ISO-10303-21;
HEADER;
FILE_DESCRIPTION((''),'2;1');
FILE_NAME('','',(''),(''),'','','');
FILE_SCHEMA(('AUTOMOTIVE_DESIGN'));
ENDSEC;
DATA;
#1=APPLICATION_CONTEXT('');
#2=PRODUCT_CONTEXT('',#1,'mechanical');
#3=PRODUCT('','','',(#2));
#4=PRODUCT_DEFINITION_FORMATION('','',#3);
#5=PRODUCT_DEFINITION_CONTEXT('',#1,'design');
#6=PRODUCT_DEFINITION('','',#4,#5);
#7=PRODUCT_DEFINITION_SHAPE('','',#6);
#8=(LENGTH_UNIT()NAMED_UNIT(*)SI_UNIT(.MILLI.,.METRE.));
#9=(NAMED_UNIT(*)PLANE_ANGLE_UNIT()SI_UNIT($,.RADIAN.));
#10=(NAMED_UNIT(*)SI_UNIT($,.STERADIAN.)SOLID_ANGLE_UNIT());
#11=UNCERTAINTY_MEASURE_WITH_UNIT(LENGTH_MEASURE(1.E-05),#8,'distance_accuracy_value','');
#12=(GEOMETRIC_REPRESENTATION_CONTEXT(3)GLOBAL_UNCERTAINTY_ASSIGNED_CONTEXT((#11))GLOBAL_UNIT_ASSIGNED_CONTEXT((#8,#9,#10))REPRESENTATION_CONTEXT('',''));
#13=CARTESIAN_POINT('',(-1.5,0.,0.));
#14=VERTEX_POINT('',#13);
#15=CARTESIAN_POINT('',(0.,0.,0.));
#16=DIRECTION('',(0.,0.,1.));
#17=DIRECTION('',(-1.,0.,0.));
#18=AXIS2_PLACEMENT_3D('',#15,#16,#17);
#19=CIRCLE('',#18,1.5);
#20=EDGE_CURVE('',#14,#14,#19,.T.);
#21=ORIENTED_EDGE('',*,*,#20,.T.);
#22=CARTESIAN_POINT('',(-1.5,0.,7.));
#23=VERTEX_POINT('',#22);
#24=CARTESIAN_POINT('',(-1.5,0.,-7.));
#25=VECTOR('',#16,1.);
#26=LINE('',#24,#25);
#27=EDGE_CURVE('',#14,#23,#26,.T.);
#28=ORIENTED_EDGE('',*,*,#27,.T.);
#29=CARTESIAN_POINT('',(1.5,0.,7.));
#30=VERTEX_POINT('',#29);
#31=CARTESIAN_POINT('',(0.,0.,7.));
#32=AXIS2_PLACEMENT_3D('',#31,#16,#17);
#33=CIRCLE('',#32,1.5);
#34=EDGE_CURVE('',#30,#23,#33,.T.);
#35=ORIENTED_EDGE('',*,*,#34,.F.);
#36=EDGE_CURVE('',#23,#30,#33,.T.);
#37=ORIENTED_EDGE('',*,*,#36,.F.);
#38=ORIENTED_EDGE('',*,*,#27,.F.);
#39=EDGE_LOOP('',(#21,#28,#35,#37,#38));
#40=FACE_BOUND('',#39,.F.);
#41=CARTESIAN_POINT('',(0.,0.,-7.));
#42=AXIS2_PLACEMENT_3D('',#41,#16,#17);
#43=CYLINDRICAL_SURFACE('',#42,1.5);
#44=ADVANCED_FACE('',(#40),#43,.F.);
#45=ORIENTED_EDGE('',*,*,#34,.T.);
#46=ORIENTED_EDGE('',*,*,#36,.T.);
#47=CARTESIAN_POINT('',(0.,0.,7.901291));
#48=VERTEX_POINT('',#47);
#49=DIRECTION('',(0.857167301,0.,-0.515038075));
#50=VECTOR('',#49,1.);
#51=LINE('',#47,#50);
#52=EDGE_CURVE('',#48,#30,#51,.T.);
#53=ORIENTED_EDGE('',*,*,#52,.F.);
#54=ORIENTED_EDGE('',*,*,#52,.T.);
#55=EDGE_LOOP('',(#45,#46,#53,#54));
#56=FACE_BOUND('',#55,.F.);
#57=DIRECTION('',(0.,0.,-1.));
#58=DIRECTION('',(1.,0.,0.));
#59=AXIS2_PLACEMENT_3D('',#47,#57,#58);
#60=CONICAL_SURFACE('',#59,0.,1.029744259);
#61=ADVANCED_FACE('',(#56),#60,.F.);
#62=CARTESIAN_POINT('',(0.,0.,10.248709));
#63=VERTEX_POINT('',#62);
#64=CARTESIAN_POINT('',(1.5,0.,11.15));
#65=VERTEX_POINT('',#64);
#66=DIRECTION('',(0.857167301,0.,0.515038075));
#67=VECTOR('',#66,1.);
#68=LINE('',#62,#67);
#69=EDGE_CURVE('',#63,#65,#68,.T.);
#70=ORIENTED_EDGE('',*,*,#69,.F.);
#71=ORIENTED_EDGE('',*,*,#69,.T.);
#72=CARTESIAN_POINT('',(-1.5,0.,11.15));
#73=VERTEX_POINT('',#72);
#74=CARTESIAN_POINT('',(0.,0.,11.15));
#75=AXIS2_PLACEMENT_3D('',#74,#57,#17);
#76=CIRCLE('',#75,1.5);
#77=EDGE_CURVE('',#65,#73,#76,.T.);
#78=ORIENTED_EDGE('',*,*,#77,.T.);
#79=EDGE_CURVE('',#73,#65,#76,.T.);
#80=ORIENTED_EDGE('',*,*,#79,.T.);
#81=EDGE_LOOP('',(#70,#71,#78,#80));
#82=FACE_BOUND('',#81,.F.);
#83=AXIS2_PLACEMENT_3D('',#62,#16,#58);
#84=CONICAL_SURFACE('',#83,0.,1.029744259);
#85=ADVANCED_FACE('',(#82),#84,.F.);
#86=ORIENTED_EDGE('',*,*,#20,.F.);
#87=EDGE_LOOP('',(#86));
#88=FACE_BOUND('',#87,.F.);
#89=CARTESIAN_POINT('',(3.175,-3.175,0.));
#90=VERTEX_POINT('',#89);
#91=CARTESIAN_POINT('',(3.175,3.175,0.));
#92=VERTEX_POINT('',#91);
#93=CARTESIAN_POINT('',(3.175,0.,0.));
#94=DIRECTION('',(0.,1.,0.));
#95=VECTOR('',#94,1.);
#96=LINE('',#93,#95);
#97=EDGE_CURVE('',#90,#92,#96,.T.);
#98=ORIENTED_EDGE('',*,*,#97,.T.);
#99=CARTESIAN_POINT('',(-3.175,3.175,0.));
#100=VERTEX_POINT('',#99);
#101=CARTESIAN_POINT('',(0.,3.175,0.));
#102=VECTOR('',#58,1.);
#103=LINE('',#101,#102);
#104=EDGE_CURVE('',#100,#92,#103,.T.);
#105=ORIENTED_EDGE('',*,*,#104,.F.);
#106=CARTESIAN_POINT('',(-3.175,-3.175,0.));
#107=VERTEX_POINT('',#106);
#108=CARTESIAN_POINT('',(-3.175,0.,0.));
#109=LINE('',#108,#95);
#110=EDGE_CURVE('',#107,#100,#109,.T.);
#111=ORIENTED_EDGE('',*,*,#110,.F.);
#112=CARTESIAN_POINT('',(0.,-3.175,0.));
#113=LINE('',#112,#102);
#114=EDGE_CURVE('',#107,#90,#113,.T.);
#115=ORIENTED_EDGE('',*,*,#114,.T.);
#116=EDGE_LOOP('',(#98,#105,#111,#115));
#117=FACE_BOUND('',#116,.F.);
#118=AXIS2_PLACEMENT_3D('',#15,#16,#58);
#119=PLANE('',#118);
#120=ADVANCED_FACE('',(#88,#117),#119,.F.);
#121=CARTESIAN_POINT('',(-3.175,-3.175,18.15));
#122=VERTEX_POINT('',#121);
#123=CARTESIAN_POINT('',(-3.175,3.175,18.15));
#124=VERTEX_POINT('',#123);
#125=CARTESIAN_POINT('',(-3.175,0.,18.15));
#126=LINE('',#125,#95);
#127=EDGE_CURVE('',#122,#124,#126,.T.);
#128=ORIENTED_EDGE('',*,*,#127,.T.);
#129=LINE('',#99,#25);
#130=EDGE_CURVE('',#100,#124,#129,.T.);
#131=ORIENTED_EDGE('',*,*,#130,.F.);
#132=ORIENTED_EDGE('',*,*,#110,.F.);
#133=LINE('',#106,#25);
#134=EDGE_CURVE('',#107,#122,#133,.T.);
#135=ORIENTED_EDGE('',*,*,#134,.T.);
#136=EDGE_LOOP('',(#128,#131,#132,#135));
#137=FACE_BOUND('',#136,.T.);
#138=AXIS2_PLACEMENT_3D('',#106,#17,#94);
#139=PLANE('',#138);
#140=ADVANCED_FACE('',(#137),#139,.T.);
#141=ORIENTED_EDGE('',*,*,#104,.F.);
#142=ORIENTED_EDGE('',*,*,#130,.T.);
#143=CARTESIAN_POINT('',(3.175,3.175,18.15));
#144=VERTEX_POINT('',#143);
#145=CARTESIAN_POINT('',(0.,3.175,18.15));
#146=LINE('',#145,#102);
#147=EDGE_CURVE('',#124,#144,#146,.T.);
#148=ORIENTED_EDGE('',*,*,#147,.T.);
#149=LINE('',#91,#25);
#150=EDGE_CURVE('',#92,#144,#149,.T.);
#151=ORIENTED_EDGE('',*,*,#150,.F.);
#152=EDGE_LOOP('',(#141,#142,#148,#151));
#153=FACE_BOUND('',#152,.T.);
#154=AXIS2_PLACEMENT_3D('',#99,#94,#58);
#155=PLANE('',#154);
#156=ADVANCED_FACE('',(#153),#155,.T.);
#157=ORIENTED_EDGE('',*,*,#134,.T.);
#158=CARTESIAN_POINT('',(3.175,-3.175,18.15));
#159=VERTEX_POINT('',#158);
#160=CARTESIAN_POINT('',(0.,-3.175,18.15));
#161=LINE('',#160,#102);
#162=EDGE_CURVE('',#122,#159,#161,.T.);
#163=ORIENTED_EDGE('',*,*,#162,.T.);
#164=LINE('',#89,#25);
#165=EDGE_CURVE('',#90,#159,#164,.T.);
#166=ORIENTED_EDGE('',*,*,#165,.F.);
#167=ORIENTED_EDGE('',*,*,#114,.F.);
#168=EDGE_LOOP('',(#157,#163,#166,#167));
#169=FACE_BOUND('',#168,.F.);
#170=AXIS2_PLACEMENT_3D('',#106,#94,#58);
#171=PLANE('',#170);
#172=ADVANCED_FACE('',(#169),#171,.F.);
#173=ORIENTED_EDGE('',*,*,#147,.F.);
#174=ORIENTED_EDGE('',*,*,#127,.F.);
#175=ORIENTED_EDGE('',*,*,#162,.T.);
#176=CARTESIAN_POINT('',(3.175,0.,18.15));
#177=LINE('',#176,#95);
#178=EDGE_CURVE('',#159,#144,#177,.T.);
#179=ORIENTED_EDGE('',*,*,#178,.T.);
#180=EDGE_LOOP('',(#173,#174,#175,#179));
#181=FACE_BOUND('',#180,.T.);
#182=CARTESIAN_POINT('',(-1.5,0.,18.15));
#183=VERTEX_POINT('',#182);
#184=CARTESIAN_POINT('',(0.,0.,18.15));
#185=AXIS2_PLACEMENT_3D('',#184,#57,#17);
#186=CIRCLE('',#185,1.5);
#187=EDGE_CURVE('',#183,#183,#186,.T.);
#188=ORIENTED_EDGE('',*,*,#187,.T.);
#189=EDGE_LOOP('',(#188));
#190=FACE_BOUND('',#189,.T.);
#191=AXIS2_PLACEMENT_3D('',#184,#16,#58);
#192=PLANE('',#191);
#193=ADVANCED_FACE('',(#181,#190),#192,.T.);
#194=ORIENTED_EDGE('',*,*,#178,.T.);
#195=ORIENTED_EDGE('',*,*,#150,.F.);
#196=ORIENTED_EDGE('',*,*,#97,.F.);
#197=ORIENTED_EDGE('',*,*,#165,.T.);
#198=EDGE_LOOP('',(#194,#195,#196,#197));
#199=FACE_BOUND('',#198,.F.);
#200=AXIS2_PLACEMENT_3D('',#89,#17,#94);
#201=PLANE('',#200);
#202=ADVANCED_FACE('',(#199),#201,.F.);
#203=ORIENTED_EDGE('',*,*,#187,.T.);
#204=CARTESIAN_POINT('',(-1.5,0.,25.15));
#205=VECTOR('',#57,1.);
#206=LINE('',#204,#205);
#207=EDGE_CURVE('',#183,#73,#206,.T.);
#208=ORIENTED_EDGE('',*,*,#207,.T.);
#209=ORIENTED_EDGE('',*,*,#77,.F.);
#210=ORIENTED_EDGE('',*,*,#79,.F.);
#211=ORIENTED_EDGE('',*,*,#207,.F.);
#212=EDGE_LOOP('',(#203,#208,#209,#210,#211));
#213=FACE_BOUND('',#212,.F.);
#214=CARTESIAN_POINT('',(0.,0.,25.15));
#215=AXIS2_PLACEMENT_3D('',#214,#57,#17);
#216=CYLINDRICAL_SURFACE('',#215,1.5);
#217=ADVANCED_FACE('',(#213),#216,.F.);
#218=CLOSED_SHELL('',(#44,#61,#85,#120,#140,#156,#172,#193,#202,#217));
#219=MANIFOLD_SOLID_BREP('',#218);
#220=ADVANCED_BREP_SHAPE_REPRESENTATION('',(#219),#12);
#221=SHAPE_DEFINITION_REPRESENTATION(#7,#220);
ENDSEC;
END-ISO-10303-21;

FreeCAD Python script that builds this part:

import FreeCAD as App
import Part
import Sketcher
from FreeCAD import Vector


def add_polygon(sketch, points):
    """Adds a closed chain of lines whose ends are joined by coincident constraints."""
    first, n = sketch.GeometryCount, len(points)
    for a, b in zip(points, points[1:] + points[:1]):
        sketch.addGeometry(Part.LineSegment(App.Vector(*a, 0), App.Vector(*b, 0)), False)
    for i in range(n):
        sketch.addConstraint(Sketcher.Constraint("Coincident", first + i, 2, first + (i + 1) % n, 1))

doc = App.newDocument("Part")
body = doc.addObject("PartDesign::Body", "Body")

# Sketch on XY plane
sketch1 = body.newObject("Sketcher::SketchObject", "Sketch")
sketch1.AttachmentSupport = (doc.getObject("XY_Plane"), [""])
sketch1.MapMode = "FlatFace"
add_polygon(sketch1, [(-3, 3), (-3, -3), (3, -3), (3, 3)])  # lines 0-3
sketch1.addConstraint([
    Sketcher.Constraint("Vertical", 0),
    Sketcher.Constraint("Horizontal", 1),
    Sketcher.Constraint("Vertical", 2),
    Sketcher.Constraint("Horizontal", 3),
    Sketcher.Constraint("Symmetric", 0, 2, 2, 2, -1, 1),
    Sketcher.Constraint("Equal", 3, 0),
    Sketcher.Constraint("DistanceX", 1, 1, 1, 2, 6.35),
])
pad1 = body.newObject("PartDesign::Pad", "Pad")
pad1.Profile = sketch1
pad1.Length = 18.15

# Sketch on XY plane
sketch2 = body.newObject("Sketcher::SketchObject", "Sketch001")
sketch2.AttachmentSupport = (doc.getObject("XY_Plane"), [""])
sketch2.MapMode = "FlatFace"
sketch2.addGeometry(Part.Circle(Vector(0, 0, 0), Vector(0, 0, 1), 1.5), False)
sketch2.addConstraint([
    Sketcher.Constraint("Coincident", 0, 3, -1, 1),
    Sketcher.Constraint("Diameter", 0, 3.0),
])
doc.recompute()
hole = body.newObject("PartDesign::Hole", "Hole")
hole.Profile = sketch2
hole.ThreadType = "None"
hole.Diameter = 3
hole.DepthType = "Dimension"
hole.Depth = 7
hole.DrillPoint = "Angled"
hole.DrillPointAngle = 118
hole.Reversed = True

# Sketch on XY plane
sketch3 = body.newObject("Sketcher::SketchObject", "Sketch002")
sketch3.AttachmentSupport = (doc.getObject("XY_Plane"), [""])
sketch3.MapMode = "FlatFace"
sketch3.AttachmentOffset = App.Placement(Vector(0, 0, 18.15), App.Rotation())
sketch3.addGeometry(Part.Circle(Vector(0, 0, 0), Vector(0, 0, 1), 1.5), False)
sketch3.addConstraint([
    Sketcher.Constraint("Coincident", 0, 3, -1, 1),
    Sketcher.Constraint("Diameter", 0, 3.0),
])
doc.recompute()
hole2 = body.newObject("PartDesign::Hole", "Hole001")
hole2.Profile = sketch3
hole2.ThreadType = "None"
hole2.Diameter = 3
hole2.DepthType = "Dimension"
hole2.Depth = 7
hole2.DrillPoint = "Angled"
hole2.DrillPointAngle = 118

doc.recompute()
